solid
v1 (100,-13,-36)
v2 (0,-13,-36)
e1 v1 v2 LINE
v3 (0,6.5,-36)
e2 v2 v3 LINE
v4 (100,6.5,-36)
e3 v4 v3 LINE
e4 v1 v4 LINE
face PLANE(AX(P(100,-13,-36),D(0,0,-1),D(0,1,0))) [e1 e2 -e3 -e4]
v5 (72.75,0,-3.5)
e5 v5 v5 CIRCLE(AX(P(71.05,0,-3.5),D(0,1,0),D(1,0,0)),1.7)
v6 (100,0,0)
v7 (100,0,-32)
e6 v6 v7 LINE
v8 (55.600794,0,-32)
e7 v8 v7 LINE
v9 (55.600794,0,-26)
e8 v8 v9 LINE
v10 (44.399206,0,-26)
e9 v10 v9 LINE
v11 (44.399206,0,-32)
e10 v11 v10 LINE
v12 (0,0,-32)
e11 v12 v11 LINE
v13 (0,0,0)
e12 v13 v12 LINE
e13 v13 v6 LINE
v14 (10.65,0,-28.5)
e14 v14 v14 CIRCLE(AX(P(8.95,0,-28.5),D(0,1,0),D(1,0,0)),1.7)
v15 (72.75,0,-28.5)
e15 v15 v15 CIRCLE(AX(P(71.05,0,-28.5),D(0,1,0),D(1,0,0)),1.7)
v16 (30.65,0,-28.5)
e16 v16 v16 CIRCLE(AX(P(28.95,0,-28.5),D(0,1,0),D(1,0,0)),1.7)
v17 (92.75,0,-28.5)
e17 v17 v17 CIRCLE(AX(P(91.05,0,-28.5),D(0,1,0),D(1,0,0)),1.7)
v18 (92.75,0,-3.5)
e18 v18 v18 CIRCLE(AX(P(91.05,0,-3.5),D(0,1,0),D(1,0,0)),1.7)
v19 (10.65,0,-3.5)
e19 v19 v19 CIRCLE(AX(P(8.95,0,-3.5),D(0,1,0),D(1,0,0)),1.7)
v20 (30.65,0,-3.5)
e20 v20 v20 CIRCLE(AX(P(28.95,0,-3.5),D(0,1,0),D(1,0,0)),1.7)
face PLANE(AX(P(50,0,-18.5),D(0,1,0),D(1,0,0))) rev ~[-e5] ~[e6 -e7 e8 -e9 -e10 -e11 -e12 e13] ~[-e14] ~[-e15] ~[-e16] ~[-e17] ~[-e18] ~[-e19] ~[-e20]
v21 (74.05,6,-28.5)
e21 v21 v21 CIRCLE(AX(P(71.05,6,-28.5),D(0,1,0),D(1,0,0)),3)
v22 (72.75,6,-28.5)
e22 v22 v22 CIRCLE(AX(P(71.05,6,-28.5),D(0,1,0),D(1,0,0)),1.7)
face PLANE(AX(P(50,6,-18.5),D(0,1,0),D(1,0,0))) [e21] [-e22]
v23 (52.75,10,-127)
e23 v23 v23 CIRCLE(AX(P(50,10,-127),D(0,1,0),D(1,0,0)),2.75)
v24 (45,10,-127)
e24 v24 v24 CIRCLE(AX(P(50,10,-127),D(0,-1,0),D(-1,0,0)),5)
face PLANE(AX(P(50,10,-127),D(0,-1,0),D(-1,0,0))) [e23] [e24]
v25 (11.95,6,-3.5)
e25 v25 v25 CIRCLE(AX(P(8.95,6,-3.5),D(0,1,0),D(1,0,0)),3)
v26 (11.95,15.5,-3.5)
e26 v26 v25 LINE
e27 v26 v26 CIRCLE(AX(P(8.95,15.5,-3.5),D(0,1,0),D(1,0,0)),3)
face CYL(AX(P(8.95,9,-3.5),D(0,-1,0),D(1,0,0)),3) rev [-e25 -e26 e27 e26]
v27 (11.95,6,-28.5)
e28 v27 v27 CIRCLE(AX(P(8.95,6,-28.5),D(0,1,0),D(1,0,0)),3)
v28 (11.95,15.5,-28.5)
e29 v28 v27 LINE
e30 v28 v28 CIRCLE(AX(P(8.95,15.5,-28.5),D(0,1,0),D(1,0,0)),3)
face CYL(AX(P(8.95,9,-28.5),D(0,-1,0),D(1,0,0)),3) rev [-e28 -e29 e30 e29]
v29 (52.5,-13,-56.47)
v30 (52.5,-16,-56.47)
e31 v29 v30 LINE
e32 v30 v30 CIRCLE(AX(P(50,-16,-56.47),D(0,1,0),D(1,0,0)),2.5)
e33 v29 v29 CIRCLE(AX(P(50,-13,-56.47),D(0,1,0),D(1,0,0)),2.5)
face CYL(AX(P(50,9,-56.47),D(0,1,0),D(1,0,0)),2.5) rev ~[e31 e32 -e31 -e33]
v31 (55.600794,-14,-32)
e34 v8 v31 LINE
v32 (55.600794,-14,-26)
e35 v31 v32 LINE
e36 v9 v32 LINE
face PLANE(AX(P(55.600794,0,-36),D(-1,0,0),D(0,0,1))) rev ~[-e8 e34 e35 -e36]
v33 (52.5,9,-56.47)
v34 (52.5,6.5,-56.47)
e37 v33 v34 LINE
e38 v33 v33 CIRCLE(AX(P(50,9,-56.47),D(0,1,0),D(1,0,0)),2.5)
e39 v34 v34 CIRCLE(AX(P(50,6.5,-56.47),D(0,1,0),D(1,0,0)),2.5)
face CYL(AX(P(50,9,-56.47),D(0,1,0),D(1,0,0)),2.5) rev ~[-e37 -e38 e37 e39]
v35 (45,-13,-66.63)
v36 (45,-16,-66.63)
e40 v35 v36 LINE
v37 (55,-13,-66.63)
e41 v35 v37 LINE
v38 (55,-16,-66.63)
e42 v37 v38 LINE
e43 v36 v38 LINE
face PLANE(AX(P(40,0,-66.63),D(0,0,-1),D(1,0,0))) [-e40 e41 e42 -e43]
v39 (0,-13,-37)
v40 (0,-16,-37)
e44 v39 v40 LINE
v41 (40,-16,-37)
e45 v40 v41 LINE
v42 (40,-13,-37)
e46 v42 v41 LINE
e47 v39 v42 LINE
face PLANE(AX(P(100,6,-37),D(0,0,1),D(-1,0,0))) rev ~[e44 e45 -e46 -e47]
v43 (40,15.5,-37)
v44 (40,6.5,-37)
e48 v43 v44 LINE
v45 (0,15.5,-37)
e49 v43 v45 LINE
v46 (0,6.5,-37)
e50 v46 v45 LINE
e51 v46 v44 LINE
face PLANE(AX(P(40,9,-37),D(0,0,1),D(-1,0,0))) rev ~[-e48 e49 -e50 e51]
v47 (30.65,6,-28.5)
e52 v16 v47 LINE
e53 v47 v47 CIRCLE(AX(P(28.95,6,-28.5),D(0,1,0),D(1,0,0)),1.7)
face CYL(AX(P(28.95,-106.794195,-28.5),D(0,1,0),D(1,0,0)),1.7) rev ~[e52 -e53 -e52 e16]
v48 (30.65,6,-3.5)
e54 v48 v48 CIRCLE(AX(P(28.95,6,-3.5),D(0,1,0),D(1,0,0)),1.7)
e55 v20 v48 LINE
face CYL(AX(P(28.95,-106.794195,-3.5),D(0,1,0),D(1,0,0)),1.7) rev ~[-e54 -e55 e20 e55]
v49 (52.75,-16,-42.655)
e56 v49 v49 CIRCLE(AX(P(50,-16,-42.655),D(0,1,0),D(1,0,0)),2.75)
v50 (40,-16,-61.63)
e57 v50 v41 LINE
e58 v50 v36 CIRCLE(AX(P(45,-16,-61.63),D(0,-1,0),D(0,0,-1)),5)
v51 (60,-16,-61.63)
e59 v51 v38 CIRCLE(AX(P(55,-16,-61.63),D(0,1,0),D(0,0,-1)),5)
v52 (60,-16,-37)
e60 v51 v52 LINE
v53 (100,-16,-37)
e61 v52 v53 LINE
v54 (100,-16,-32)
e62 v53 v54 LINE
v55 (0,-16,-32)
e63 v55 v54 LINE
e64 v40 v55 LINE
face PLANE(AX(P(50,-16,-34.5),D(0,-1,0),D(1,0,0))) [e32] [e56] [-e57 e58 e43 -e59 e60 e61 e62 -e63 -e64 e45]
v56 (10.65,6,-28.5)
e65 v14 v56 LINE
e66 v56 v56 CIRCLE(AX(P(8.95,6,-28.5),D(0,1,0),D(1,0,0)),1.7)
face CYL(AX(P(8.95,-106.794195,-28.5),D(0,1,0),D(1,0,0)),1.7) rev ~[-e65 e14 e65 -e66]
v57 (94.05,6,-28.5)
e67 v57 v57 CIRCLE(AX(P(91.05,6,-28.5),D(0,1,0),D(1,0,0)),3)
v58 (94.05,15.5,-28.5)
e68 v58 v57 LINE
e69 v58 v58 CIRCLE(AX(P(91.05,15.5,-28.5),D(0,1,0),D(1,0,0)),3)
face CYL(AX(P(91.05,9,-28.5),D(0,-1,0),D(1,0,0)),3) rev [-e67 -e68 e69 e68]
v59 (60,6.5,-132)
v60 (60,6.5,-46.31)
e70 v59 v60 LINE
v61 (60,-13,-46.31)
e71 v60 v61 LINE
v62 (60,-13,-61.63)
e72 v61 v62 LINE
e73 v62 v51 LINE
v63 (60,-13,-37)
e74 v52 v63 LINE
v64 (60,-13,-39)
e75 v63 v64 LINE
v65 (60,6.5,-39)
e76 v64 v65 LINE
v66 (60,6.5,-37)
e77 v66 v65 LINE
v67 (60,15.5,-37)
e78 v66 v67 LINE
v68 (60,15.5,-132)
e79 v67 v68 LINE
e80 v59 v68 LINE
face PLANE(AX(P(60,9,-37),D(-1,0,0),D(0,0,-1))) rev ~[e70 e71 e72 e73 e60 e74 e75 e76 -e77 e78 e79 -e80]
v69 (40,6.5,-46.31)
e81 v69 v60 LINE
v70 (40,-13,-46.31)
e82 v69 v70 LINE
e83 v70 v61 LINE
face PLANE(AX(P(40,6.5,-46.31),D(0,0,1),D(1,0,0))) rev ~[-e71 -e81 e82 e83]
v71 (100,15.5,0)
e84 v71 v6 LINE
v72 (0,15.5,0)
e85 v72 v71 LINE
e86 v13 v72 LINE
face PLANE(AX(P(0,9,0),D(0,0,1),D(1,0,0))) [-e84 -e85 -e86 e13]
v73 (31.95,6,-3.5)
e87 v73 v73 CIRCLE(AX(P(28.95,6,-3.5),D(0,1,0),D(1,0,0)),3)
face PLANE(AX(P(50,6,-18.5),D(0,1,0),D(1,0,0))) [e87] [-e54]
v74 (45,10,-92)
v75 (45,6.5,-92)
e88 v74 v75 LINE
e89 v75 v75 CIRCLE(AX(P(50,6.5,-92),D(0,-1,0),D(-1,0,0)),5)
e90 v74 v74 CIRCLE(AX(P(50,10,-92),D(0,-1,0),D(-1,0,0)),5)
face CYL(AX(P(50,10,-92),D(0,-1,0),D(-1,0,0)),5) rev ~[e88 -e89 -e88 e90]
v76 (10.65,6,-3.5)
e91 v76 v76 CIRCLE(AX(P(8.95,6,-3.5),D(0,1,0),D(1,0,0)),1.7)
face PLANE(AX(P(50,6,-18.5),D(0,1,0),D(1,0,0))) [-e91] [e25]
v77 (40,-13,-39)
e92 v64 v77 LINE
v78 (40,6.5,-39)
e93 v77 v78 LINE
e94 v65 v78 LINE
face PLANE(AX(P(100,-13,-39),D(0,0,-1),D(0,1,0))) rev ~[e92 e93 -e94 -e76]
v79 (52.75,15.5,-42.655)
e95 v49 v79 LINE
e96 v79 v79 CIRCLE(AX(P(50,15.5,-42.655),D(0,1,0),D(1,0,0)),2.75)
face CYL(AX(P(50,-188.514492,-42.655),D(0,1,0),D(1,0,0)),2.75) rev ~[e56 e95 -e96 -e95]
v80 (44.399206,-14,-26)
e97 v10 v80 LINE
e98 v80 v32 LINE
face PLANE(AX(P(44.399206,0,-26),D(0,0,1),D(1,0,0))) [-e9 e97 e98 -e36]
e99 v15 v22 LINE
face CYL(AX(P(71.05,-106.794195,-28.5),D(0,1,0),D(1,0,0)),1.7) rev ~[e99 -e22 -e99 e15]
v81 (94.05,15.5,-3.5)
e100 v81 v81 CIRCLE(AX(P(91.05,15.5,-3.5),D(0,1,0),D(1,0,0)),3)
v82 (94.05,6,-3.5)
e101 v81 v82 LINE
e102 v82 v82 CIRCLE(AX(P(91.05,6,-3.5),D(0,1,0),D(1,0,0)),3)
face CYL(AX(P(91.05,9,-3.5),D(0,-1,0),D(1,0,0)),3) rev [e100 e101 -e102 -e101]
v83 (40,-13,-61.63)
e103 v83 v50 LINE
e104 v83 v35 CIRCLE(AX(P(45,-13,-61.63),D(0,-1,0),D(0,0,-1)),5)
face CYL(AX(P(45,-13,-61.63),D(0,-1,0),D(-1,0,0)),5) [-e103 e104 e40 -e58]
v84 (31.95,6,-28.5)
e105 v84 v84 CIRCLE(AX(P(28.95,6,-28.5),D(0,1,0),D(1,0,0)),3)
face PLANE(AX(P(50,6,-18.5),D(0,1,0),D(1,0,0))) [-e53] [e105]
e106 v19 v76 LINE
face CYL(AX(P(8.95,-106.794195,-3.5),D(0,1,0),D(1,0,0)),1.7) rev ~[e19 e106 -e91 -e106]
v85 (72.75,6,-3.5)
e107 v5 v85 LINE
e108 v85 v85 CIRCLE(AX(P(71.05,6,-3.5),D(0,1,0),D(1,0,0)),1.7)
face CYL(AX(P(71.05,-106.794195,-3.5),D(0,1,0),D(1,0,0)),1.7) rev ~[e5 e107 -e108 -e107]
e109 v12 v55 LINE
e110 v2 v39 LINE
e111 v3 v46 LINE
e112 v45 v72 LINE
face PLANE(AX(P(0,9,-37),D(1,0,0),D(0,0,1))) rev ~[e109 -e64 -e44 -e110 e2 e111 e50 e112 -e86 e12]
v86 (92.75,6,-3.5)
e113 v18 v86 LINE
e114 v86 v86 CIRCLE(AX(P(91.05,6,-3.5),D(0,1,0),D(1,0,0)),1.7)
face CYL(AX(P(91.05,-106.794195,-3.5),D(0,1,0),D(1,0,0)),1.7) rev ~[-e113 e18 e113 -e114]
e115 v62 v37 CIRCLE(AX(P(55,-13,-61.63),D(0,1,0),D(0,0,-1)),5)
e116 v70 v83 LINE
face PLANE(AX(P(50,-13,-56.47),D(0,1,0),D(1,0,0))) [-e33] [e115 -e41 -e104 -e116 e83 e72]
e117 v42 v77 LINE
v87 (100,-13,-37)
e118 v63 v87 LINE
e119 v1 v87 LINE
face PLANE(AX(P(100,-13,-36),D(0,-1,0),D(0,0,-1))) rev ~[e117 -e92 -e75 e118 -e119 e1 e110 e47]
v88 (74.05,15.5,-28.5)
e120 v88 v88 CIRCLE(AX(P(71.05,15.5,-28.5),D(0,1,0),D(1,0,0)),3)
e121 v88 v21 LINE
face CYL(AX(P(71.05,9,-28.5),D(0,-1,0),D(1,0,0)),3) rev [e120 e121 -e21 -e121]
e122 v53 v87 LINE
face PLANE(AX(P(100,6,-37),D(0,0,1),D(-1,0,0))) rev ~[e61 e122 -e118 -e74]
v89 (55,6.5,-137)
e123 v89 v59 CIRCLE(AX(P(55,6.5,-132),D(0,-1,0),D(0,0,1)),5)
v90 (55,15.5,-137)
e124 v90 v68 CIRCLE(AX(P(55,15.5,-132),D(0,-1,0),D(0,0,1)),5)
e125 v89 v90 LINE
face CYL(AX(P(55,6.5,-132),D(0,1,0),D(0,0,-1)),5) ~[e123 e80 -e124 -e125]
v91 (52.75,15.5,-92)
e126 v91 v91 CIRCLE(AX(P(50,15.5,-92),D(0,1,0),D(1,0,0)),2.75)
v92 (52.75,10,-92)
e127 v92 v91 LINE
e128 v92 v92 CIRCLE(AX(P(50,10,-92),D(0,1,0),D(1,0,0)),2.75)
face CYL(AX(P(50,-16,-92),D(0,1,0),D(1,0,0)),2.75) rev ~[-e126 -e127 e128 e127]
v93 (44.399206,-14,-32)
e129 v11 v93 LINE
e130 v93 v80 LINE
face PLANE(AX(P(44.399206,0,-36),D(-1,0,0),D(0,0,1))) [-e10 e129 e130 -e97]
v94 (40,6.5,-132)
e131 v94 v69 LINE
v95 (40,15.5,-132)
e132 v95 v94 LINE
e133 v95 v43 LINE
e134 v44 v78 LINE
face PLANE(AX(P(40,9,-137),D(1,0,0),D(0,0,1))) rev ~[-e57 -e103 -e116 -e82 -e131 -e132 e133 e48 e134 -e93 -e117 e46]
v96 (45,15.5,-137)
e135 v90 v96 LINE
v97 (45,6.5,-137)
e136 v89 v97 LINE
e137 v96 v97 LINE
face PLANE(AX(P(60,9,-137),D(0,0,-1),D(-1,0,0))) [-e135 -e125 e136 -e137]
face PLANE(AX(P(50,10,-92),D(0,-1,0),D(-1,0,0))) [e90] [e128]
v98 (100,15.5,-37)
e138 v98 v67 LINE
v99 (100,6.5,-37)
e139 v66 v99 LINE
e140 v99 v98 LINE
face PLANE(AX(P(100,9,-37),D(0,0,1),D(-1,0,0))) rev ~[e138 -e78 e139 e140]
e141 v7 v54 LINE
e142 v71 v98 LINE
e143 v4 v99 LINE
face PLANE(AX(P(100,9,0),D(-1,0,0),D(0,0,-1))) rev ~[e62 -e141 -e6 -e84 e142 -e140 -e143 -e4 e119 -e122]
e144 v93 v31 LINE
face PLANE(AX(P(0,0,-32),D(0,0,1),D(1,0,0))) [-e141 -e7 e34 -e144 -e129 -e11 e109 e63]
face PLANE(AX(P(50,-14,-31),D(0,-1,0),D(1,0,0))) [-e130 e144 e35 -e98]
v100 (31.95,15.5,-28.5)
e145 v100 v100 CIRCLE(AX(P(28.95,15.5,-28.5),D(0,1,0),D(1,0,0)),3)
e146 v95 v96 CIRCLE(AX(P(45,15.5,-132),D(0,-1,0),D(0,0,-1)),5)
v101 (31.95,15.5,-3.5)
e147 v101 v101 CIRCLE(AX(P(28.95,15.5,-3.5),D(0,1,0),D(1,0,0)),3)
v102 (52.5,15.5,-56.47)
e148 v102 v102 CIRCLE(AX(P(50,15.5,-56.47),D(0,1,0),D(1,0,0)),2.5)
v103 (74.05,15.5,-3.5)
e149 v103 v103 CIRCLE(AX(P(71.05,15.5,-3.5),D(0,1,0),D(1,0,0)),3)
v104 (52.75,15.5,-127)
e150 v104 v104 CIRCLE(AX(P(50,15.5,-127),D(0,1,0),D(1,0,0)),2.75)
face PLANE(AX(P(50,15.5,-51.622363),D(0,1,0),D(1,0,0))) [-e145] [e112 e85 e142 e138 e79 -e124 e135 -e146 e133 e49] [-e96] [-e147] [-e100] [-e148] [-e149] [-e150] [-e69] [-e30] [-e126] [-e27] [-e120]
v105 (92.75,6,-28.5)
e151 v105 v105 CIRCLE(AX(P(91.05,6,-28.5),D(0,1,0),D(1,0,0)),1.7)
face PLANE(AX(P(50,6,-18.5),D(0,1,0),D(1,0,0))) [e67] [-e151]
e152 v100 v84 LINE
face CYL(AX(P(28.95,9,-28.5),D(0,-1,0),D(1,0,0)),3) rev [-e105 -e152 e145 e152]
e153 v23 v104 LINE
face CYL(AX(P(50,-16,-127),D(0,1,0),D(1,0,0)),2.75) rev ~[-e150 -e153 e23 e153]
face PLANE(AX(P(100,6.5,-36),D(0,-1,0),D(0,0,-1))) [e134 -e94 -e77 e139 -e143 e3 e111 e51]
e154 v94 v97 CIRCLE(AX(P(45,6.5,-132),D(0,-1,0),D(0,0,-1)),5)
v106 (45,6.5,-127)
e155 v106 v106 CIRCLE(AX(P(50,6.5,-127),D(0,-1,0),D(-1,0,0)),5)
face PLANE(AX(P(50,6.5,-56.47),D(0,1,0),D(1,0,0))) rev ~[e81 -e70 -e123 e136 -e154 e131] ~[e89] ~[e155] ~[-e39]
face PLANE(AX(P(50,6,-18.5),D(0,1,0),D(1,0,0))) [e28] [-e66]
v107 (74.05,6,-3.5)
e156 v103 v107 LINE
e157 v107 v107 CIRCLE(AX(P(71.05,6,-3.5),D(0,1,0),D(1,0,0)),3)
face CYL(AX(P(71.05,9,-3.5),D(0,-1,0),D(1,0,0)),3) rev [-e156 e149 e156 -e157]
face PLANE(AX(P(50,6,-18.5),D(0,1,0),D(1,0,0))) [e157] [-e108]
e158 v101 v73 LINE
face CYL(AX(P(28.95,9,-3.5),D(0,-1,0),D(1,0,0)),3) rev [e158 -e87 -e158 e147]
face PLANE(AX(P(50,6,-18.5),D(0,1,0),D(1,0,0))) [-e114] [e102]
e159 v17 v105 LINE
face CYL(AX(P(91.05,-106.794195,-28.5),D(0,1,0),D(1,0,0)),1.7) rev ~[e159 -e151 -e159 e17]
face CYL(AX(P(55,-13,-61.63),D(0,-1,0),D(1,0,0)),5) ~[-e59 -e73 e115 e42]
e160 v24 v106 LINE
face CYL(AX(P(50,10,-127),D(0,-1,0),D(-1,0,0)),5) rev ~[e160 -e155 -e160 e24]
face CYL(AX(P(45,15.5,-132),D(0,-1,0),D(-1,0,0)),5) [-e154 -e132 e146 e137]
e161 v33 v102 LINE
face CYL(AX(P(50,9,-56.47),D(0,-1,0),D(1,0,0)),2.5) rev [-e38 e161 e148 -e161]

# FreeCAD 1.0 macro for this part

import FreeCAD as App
import Part
import Sketcher
Q = App.Units.Quantity


def edges_at(feature, points):
    """Names of the edges that pass closest to the given points."""
    edges = feature.Shape.Edges
    near = lambda p: min(range(len(edges)), key=lambda i: edges[i].distToShape(Part.Vertex(*p))[0])
    return sorted({f"Edge{near(p) + 1}" for p in points})

doc = App.newDocument("Part")
body = doc.addObject("PartDesign::Body", "Body")

sketch1 = body.newObject("Sketcher::SketchObject", "Sketch")
sketch1.AttachmentSupport = (doc.getObject("XZ_Plane"), [""])
sketch1.MapMode = "FlatFace"
sketch1.addGeometry([
    Part.LineSegment(App.Vector(0, -37, 0), App.Vector(0, 0, 0)),
    Part.LineSegment(App.Vector(0, 0, 0), App.Vector(100, 0, 0)),
    Part.LineSegment(App.Vector(100, 0, 0), App.Vector(100, -37, 0)),
    Part.LineSegment(App.Vector(100, -37, 0), App.Vector(0, -37, 0)),
], False)
sketch1.addConstraint([
    Sketcher.Constraint("Coincident", 0, 2, 1, 1),
    Sketcher.Constraint("Coincident", 1, 2, 2, 1),
    Sketcher.Constraint("Coincident", 2, 2, 3, 1),
    Sketcher.Constraint("Coincident", 3, 2, 0, 1),
    Sketcher.Constraint("Vertical", 0),
    Sketcher.Constraint("Horizontal", 1),
    Sketcher.Constraint("Vertical", 2),
    Sketcher.Constraint("Horizontal", 3),
    Sketcher.Constraint("Coincident", 0, 2, -1, 1),
    Sketcher.Constraint("DistanceX", 1, 1, 1, 2, Q("100 mm")),
    Sketcher.Constraint("DistanceY", 0, 1, 0, 2, Q("37 mm")),
])
pad1 = body.newObject("PartDesign::Pad", "Pad")
pad1.Profile = sketch1
pad1.Length = 6
pad1.Reversed = True

sketch2 = body.newObject("Sketcher::SketchObject", "Sketch001")
sketch2.AttachmentSupport = (doc.getObject("XZ_Plane"), [""])
sketch2.MapMode = "FlatFace"
sketch2.addGeometry([
    Part.Circle(App.Vector(8.95, -3.5, 0), App.Vector(0, 0, 1), 1.7),
    Part.Circle(App.Vector(8.95, -28.5, 0), App.Vector(0, 0, 1), 1.7),
    Part.Circle(App.Vector(28.95, -28.5, 0), App.Vector(0, 0, 1), 1.7),
    Part.Circle(App.Vector(28.95, -3.5, 0), App.Vector(0, 0, 1), 1.7),
    Part.Circle(App.Vector(71.05, -3.5, 0), App.Vector(0, 0, 1), 1.7),
    Part.Circle(App.Vector(71.05, -28.5, 0), App.Vector(0, 0, 1), 1.7),
    Part.Circle(App.Vector(91.05, -28.5, 0), App.Vector(0, 0, 1), 1.7),
    Part.Circle(App.Vector(91.05, -3.5, 0), App.Vector(0, 0, 1), 1.7),
], False)
sketch2.addConstraint([
    Sketcher.Constraint("Equal", 0, 1),
    Sketcher.Constraint("Equal", 1, 2),
    Sketcher.Constraint("Equal", 2, 3),
    Sketcher.Constraint("Equal", 3, 4),
    Sketcher.Constraint("Equal", 4, 5),
    Sketcher.Constraint("Equal", 5, 6),
    Sketcher.Constraint("Equal", 6, 7),
    Sketcher.Constraint("Horizontal", 1, 3, 2, 3),
    Sketcher.Constraint("Horizontal", 0, 3, 3, 3),
    Sketcher.Constraint("Horizontal", 3, 3, 4, 3),
    Sketcher.Constraint("Horizontal", 2, 3, 5, 3),
    Sketcher.Constraint("Horizontal", 5, 3, 6, 3),
    Sketcher.Constraint("Horizontal", 4, 3, 7, 3),
    Sketcher.Constraint("Vertical", 0, 3, 1, 3),
    Sketcher.Constraint("Vertical", 2, 3, 3, 3),
    Sketcher.Constraint("Vertical", 4, 3, 5, 3),
    Sketcher.Constraint("Vertical", 6, 3, 7, 3),
    Sketcher.Constraint("Diameter", 0, Q("3.4 mm")),
    Sketcher.Constraint("DistanceY", 1, 3, 0, 3, Q("25 mm")),
    Sketcher.Constraint("DistanceX", 1, 3, 2, 3, Q("20 mm")),
    Sketcher.Constraint("DistanceX", 5, 3, 6, 3, Q("20 mm")),
    Sketcher.Constraint("DistanceY", 0, 3, -1, 1, Q("3.5 mm")),
    Sketcher.Constraint("DistanceX", 3, 3, 4, 3, Q("42.1 mm")),
    Sketcher.Constraint("DistanceX", -1, 1, 0, 3, Q("8.95 mm")),
])
doc.recompute()
hole = body.newObject("PartDesign::Hole", "Hole")
hole.Profile = sketch2
hole.ThreadType = "None"
hole.Diameter = 3.4
hole.DepthType = "ThroughAll"

sketch3 = body.newObject("Sketcher::SketchObject", "Sketch002")
sketch3.AttachmentSupport = (doc.getObject("XZ_Plane"), [""])
sketch3.MapMode = "FlatFace"
sketch3.addGeometry([
    Part.LineSegment(App.Vector(40, -37, 0), App.Vector(40, -66.63, 0)),
    Part.LineSegment(App.Vector(40, -66.63, 0), App.Vector(60, -66.63, 0)),
    Part.LineSegment(App.Vector(60, -66.63, 0), App.Vector(60, -37, 0)),
    Part.LineSegment(App.Vector(60, -37, 0), App.Vector(40, -37, 0)),
], False)
sketch3.addConstraint([
    Sketcher.Constraint("Coincident", 0, 2, 1, 1),
    Sketcher.Constraint("Coincident", 1, 2, 2, 1),
    Sketcher.Constraint("Coincident", 2, 2, 3, 1),
    Sketcher.Constraint("Coincident", 3, 2, 0, 1),
    Sketcher.Constraint("Vertical", 0),
    Sketcher.Constraint("Horizontal", 1),
    Sketcher.Constraint("Vertical", 2),
    Sketcher.Constraint("Horizontal", 3),
    Sketcher.Constraint("DistanceX", 1, 1, 1, 2, Q("20 mm")),
    Sketcher.Constraint("DistanceX", -1, 1, 0, 2, Q("40 mm")),
    Sketcher.Constraint("DistanceY", 2, 2, -1, 1, Q("37 mm")),
    Sketcher.Constraint("DistanceY", 0, 2, 0, 1, Q("29.63 mm")),
])
pad2 = body.newObject("PartDesign::Pad", "Pad001")
pad2.Profile = sketch3
pad2.Type = "TwoLengths"
pad2.Length = 16
pad2.Length2 = 9

sketch4 = body.newObject("Sketcher::SketchObject", "Sketch003")
sketch4.AttachmentSupport = (doc.getObject("XZ_Plane"), [""])
sketch4.MapMode = "FlatFace"
sketch4.addGeometry([
    Part.LineSegment(App.Vector(0, -32, 0), App.Vector(0, -37, 0)),
    Part.LineSegment(App.Vector(0, -37, 0), App.Vector(100, -37, 0)),
    Part.LineSegment(App.Vector(100, -37, 0), App.Vector(100, -32, 0)),
    Part.LineSegment(App.Vector(100, -32, 0), App.Vector(0, -32, 0)),
], False)
sketch4.addConstraint([
    Sketcher.Constraint("Coincident", 0, 2, 1, 1),
    Sketcher.Constraint("Coincident", 1, 2, 2, 1),
    Sketcher.Constraint("Coincident", 2, 2, 3, 1),
    Sketcher.Constraint("Coincident", 3, 2, 0, 1),
    Sketcher.Constraint("Vertical", 0),
    Sketcher.Constraint("Horizontal", 1),
    Sketcher.Constraint("Vertical", 2),
    Sketcher.Constraint("Horizontal", 3),
    Sketcher.Constraint("PointOnObject", 0, 2, -2),
    Sketcher.Constraint("DistanceX", 1, 1, 1, 2, Q("100 mm")),
    Sketcher.Constraint("DistanceY", 0, 2, 0, 1, Q("5 mm")),
    Sketcher.Constraint("DistanceY", 0, 2, -1, 1, Q("37 mm")),
])
pad3 = body.newObject("PartDesign::Pad", "Pad002")
pad3.Profile = sketch4
pad3.Length = 16

sketch5 = body.newObject("Sketcher::SketchObject", "Sketch004")
sketch5.AttachmentSupport = (doc.getObject("XZ_Plane"), [""])
sketch5.MapMode = "FlatFace"
sketch5.AttachmentOffset = App.Placement(App.Vector(0, 0, -6), App.Rotation())
sketch5.addGeometry([
    Part.LineSegment(App.Vector(0, -37, 0), App.Vector(0, 0, 0)),
    Part.LineSegment(App.Vector(0, 0, 0), App.Vector(100, 0, 0)),
    Part.LineSegment(App.Vector(100, 0, 0), App.Vector(100, -37, 0)),
    Part.LineSegment(App.Vector(100, -37, 0), App.Vector(0, -37, 0)),
    Part.Circle(App.Vector(8.95, -3.5, 0), App.Vector(0, 0, 1), 3),
    Part.Circle(App.Vector(28.95, -3.5, 0), App.Vector(0, 0, 1), 3),
    Part.Circle(App.Vector(71.05, -3.5, 0), App.Vector(0, 0, 1), 3),
    Part.Circle(App.Vector(91.05, -3.5, 0), App.Vector(0, 0, 1), 3),
    Part.Circle(App.Vector(8.95, -28.5, 0), App.Vector(0, 0, 1), 3),
    Part.Circle(App.Vector(28.95, -28.5, 0), App.Vector(0, 0, 1), 3),
    Part.Circle(App.Vector(71.05, -28.5, 0), App.Vector(0, 0, 1), 3),
    Part.Circle(App.Vector(91.05, -28.5, 0), App.Vector(0, 0, 1), 3),
], False)
sketch5.addConstraint([
    Sketcher.Constraint("Coincident", 0, 2, 1, 1),
    Sketcher.Constraint("Coincident", 1, 2, 2, 1),
    Sketcher.Constraint("Coincident", 2, 2, 3, 1),
    Sketcher.Constraint("Coincident", 3, 2, 0, 1),
    Sketcher.Constraint("Vertical", 0),
    Sketcher.Constraint("Horizontal", 1),
    Sketcher.Constraint("Vertical", 2),
    Sketcher.Constraint("Horizontal", 3),
    Sketcher.Constraint("Coincident", 0, 2, -1, 1),
    Sketcher.Constraint("Equal", 4, 5),
    Sketcher.Constraint("Equal", 5, 6),
    Sketcher.Constraint("Equal", 6, 7),
    Sketcher.Constraint("Equal", 7, 8),
    Sketcher.Constraint("Equal", 8, 9),
    Sketcher.Constraint("Equal", 9, 10),
    Sketcher.Constraint("Equal", 10, 11),
    Sketcher.Constraint("Horizontal", 4, 3, 5, 3),
    Sketcher.Constraint("Horizontal", 5, 3, 6, 3),
    Sketcher.Constraint("Horizontal", 6, 3, 7, 3),
    Sketcher.Constraint("Horizontal", 8, 3, 9, 3),
    Sketcher.Constraint("Horizontal", 9, 3, 10, 3),
    Sketcher.Constraint("Horizontal", 10, 3, 11, 3),
    Sketcher.Constraint("Vertical", 4, 3, 8, 3),
    Sketcher.Constraint("Vertical", 5, 3, 9, 3),
    Sketcher.Constraint("Vertical", 6, 3, 10, 3),
    Sketcher.Constraint("Vertical", 7, 3, 11, 3),
    Sketcher.Constraint("Diameter", 4, Q("6 mm")),
    Sketcher.Constraint("DistanceX", 1, 1, 1, 2, Q("100 mm")),
    Sketcher.Constraint("DistanceY", 0, 1, 0, 2, Q("37 mm")),
    Sketcher.Constraint("DistanceX", 4, 3, 5, 3, Q("20 mm")),
    Sketcher.Constraint("DistanceX", 6, 3, 7, 3, Q("20 mm")),
    Sketcher.Constraint("DistanceY", 8, 3, 4, 3, Q("25 mm")),
    Sketcher.Constraint("DistanceY", 4, 3, -1, 1, Q("3.5 mm")),
    Sketcher.Constraint("DistanceX", 5, 3, 6, 3, Q("42.1 mm")),
    Sketcher.Constraint("DistanceX", -1, 1, 4, 3, Q("8.95 mm")),
])
pad4 = body.newObject("PartDesign::Pad", "Pad003")
pad4.Profile = sketch5
pad4.Length = 3
pad4.Reversed = True

sketch6 = body.newObject("Sketcher::SketchObject", "Sketch005")
sketch6.AttachmentSupport = (doc.getObject("YZ_Plane"), [""])
sketch6.MapMode = "FlatFace"
sketch6.AttachmentOffset = App.Placement(App.Vector(0, 0, 100), App.Rotation())
sketch6.addGeometry([
    Part.LineSegment(App.Vector(6.5, -36, 0), App.Vector(-13, -36, 0)),
    Part.LineSegment(App.Vector(-13, -36, 0), App.Vector(-13, -39, 0)),
    Part.LineSegment(App.Vector(-13, -39, 0), App.Vector(6.5, -39, 0)),
    Part.LineSegment(App.Vector(6.5, -39, 0), App.Vector(6.5, -36, 0)),
], False)
sketch6.addConstraint([
    Sketcher.Constraint("Coincident", 0, 2, 1, 1),
    Sketcher.Constraint("Coincident", 1, 2, 2, 1),
    Sketcher.Constraint("Coincident", 2, 2, 3, 1),
    Sketcher.Constraint("Coincident", 3, 2, 0, 1),
    Sketcher.Constraint("Horizontal", 0),
    Sketcher.Constraint("Vertical", 1),
    Sketcher.Constraint("Horizontal", 2),
    Sketcher.Constraint("Vertical", 3),
    Sketcher.Constraint("DistanceY", 1, 2, 1, 1, Q("3 mm")),
    Sketcher.Constraint("DistanceX", 0, 2, 0, 1, Q("19.5 mm")),
    Sketcher.Constraint("DistanceX", 0, 2, -1, 1, Q("13 mm")),
    Sketcher.Constraint("DistanceY", 0, 2, -1, 1, Q("36 mm")),
])
pocket1 = body.newObject("PartDesign::Pocket", "Pocket")
pocket1.Profile = sketch6
pocket1.Type = "ThroughAll"

sketch7 = body.newObject("Sketcher::SketchObject", "Sketch006")
sketch7.AttachmentSupport = (doc.getObject("XZ_Plane"), [""])
sketch7.MapMode = "FlatFace"
sketch7.AttachmentOffset = App.Placement(App.Vector(0, 0, -6.5), App.Rotation())
sketch7.addGeometry([
    Part.LineSegment(App.Vector(40, -66.63, 0), App.Vector(40, -46.31, 0)),
    Part.LineSegment(App.Vector(40, -46.31, 0), App.Vector(60, -46.31, 0)),
    Part.LineSegment(App.Vector(60, -46.31, 0), App.Vector(60, -66.63, 0)),
    Part.LineSegment(App.Vector(60, -66.63, 0), App.Vector(40, -66.63, 0)),
], False)
sketch7.addConstraint([
    Sketcher.Constraint("Coincident", 0, 2, 1, 1),
    Sketcher.Constraint("Coincident", 1, 2, 2, 1),
    Sketcher.Constraint("Coincident", 2, 2, 3, 1),
    Sketcher.Constraint("Coincident", 3, 2, 0, 1),
    Sketcher.Constraint("Vertical", 0),
    Sketcher.Constraint("Horizontal", 1),
    Sketcher.Constraint("Vertical", 2),
    Sketcher.Constraint("Horizontal", 3),
    Sketcher.Constraint("DistanceX", 1, 1, 1, 2, Q("20 mm")),
    Sketcher.Constraint("DistanceX", -1, 1, 0, 2, Q("40 mm")),
    Sketcher.Constraint("DistanceY", 0, 1, 0, 2, Q("20.32 mm")),
    Sketcher.Constraint("DistanceY", 0, 2, -1, 1, Q("46.31 mm")),
])
pocket2 = body.newObject("PartDesign::Pocket", "Pocket001")
pocket2.Profile = sketch7
pocket2.Length = 19.5
pocket2.Reversed = True

sketch8 = body.newObject("Sketcher::SketchObject", "Sketch007")
sketch8.AttachmentSupport = (doc.getObject("XZ_Plane"), [""])
sketch8.MapMode = "FlatFace"
sketch8.AttachmentOffset = App.Placement(App.Vector(0, 0, -9), App.Rotation())
sketch8.addGeometry(Part.Circle(App.Vector(50, -56.47, 0), App.Vector(0, 0, 1), 2.5), False)
sketch8.addConstraint([
    Sketcher.Constraint("Diameter", 0, Q("5 mm")),
    Sketcher.Constraint("DistanceX", -1, 1, 0, 3, Q("50 mm")),
    Sketcher.Constraint("DistanceY", 0, 3, -1, 1, Q("56.47 mm")),
])
pocket3 = body.newObject("PartDesign::Pocket", "Pocket002")
pocket3.Profile = sketch8
pocket3.Type = "ThroughAll"
pocket3.Reversed = True
doc.recompute()

fillet = body.newObject("PartDesign::Fillet", "Fillet")
fillet.Base = (pocket3, edges_at(pocket3, [
    (60, 7.75, -66.63),
    (40, 7.75, -66.63),
    (40, -14.5, -66.63),
    (60, -14.5, -66.63),
]))
fillet.Radius = 5

sketch9 = body.newObject("Sketcher::SketchObject", "Sketch008")
sketch9.AttachmentSupport = (doc.getObject("XZ_Plane"), [""])
sketch9.MapMode = "FlatFace"
sketch9.AttachmentOffset = App.Placement(App.Vector(0, 0, -9), App.Rotation())
sketch9.addGeometry([
    Part.LineSegment(App.Vector(40, -37, 0), App.Vector(0, -37, 0)),
    Part.LineSegment(App.Vector(0, -37, 0), App.Vector(0, 0, 0)),
    Part.LineSegment(App.Vector(0, 0, 0), App.Vector(100, 0, 0)),
    Part.LineSegment(App.Vector(100, 0, 0), App.Vector(100, -37, 0)),
    Part.LineSegment(App.Vector(100, -37, 0), App.Vector(60, -37, 0)),
    Part.LineSegment(App.Vector(60, -37, 0), App.Vector(60, -137, 0)),
    Part.LineSegment(App.Vector(60, -137, 0), App.Vector(40, -137, 0)),
    Part.LineSegment(App.Vector(40, -137, 0), App.Vector(40, -37, 0)),
    Part.Circle(App.Vector(8.95, -3.5, 0), App.Vector(0, 0, 1), 3),
    Part.Circle(App.Vector(28.95, -3.5, 0), App.Vector(0, 0, 1), 3),
    Part.Circle(App.Vector(8.95, -28.5, 0), App.Vector(0, 0, 1), 3),
    Part.Circle(App.Vector(28.95, -28.5, 0), App.Vector(0, 0, 1), 3),
    Part.Circle(App.Vector(71.05, -3.5, 0), App.Vector(0, 0, 1), 3),
    Part.Circle(App.Vector(91.05, -3.5, 0), App.Vector(0, 0, 1), 3),
    Part.Circle(App.Vector(71.05, -28.5, 0), App.Vector(0, 0, 1), 3),
    Part.Circle(App.Vector(91.05, -28.5, 0), App.Vector(0, 0, 1), 3),
    Part.Circle(App.Vector(50, -56.47, 0), App.Vector(0, 0, 1), 2.5),
], False)
sketch9.addConstraint([
    Sketcher.Constraint("Coincident", 0, 2, 1, 1),
    Sketcher.Constraint("Coincident", 1, 2, 2, 1),
    Sketcher.Constraint("Coincident", 2, 2, 3, 1),
    Sketcher.Constraint("Coincident", 3, 2, 4, 1),
    Sketcher.Constraint("Coincident", 4, 2, 5, 1),
    Sketcher.Constraint("Coincident", 5, 2, 6, 1),
    Sketcher.Constraint("Coincident", 6, 2, 7, 1),
    Sketcher.Constraint("Coincident", 7, 2, 0, 1),
    Sketcher.Constraint("Horizontal", 0),
    Sketcher.Constraint("Vertical", 1),
    Sketcher.Constraint("Horizontal", 2),
    Sketcher.Constraint("Vertical", 3),
    Sketcher.Constraint("Horizontal", 4),
    Sketcher.Constraint("Vertical", 5),
    Sketcher.Constraint("Horizontal", 6),
    Sketcher.Constraint("Vertical", 7),
    Sketcher.Constraint("Coincident", 1, 2, -1, 1),
    Sketcher.Constraint("Equal", 8, 9),
    Sketcher.Constraint("Equal", 9, 10),
    Sketcher.Constraint("Equal", 10, 11),
    Sketcher.Constraint("Equal", 11, 12),
    Sketcher.Constraint("Equal", 12, 13),
    Sketcher.Constraint("Equal", 13, 14),
    Sketcher.Constraint("Equal", 14, 15),
    Sketcher.Constraint("Horizontal", 8, 3, 9, 3),
    Sketcher.Constraint("Horizontal", 10, 3, 11, 3),
    Sketcher.Constraint("Horizontal", 9, 3, 12, 3),
    Sketcher.Constraint("Horizontal", 12, 3, 13, 3),
    Sketcher.Constraint("Horizontal", 11, 3, 14, 3),
    Sketcher.Constraint("Horizontal", 14, 3, 15, 3),
    Sketcher.Constraint("Horizontal", 0, 2, 3, 2),
    Sketcher.Constraint("Vertical", 8, 3, 10, 3),
    Sketcher.Constraint("Vertical", 9, 3, 11, 3),
    Sketcher.Constraint("Vertical", 12, 3, 14, 3),
    Sketcher.Constraint("Vertical", 13, 3, 15, 3),
    Sketcher.Constraint("Equal", 0, 4),
    Sketcher.Constraint("Equal", 2, 5),
    Sketcher.Constraint("Diameter", 8, Q("6 mm")),
    Sketcher.Constraint("Diameter", 16, Q("5 mm")),
    Sketcher.Constraint("DistanceX", 0, 2, 0, 1, Q("40 mm")),
    Sketcher.Constraint("DistanceX", 2, 1, 2, 2, Q("100 mm")),
    Sketcher.Constraint("DistanceY", 1, 1, 1, 2, Q("37 mm")),
    Sketcher.Constraint("DistanceX", -1, 1, 16, 3, Q("50 mm")),
    Sketcher.Constraint("DistanceX", 8, 3, 9, 3, Q("20 mm")),
    Sketcher.Constraint("DistanceY", 10, 3, 8, 3, Q("25 mm")),
    Sketcher.Constraint("DistanceX", 12, 3, 13, 3, Q("20 mm")),
    Sketcher.Constraint("DistanceY", 8, 3, -1, 1, Q("3.5 mm")),
    Sketcher.Constraint("DistanceX", 9, 3, 12, 3, Q("42.1 mm")),
    Sketcher.Constraint("DistanceX", -1, 1, 8, 3, Q("8.95 mm")),
    Sketcher.Constraint("DistanceY", 16, 3, -1, 1, Q("56.47 mm")),
])
pad5 = body.newObject("PartDesign::Pad", "Pad004")
pad5.Profile = sketch9
pad5.Type = "TwoLengths"
pad5.Length = 6.5
pad5.Length2 = 2.5
pad5.Reversed = True

sketch10 = body.newObject("Sketcher::SketchObject", "Sketch009")
sketch10.AttachmentSupport = (doc.getObject("XZ_Plane"), [""])
sketch10.MapMode = "FlatFace"
sketch10.AttachmentOffset = App.Placement(App.Vector(0, 0, 16), App.Rotation())
sketch10.addGeometry([
    Part.Circle(App.Vector(50, -127, 0), App.Vector(0, 0, 1), 2.75),
    Part.Circle(App.Vector(50, -92, 0), App.Vector(0, 0, 1), 2.75),
], False)
sketch10.addConstraint([
    Sketcher.Constraint("Equal", 0, 1),
    Sketcher.Constraint("Vertical", 0, 3, 1, 3),
    Sketcher.Constraint("Diameter", 0, Q("5.5 mm")),
    Sketcher.Constraint("DistanceX", -1, 1, 0, 3, Q("50 mm")),
    Sketcher.Constraint("DistanceY", 0, 3, -1, 1, Q("127 mm")),
    Sketcher.Constraint("DistanceY", 1, 3, -1, 1, Q("92 mm")),
])
doc.recompute()
hole2 = body.newObject("PartDesign::Hole", "Hole001")
hole2.Profile = sketch10
hole2.ThreadType = "None"
hole2.Diameter = 5.5
hole2.DepthType = "ThroughAll"
hole2.HoleCutType = "Counterbore"
hole2.HoleCutDiameter = 10
hole2.HoleCutDepth = 26

sketch11 = body.newObject("Sketcher::SketchObject", "Sketch010")
sketch11.AttachmentSupport = (doc.getObject("XZ_Plane"), [""])
sketch11.MapMode = "FlatFace"
sketch11.AttachmentOffset = App.Placement(App.Vector(0, 0, 16), App.Rotation())
sketch11.addGeometry(Part.Circle(App.Vector(50, -42.655, 0), App.Vector(0, 0, 1), 2.75), False)
sketch11.addConstraint([
    Sketcher.Constraint("Diameter", 0, Q("5.5 mm")),
    Sketcher.Constraint("DistanceX", -1, 1, 0, 3, Q("50 mm")),
    Sketcher.Constraint("DistanceY", 0, 3, -1, 1, Q("42.655 mm")),
])
doc.recompute()
hole3 = body.newObject("PartDesign::Hole", "Hole002")
hole3.Profile = sketch11
hole3.ThreadType = "None"
hole3.Diameter = 5.5
hole3.DepthType = "ThroughAll"
doc.recompute()

fillet2 = body.newObject("PartDesign::Fillet", "Fillet001")
fillet2.Base = (hole3, edges_at(hole3, [(60, 11, -137), (40, 11, -137)]))
fillet2.Radius = 5

sketch12 = body.newObject("Sketcher::SketchObject", "Sketch011")
sketch12.AttachmentSupport = (doc.getObject("XZ_Plane"), [""])
sketch12.MapMode = "FlatFace"
sketch12.addGeometry([
    Part.LineSegment(App.Vector(44.399206, -26, 0), App.Vector(44.399206, -36, 0)),
    Part.LineSegment(App.Vector(44.399206, -36, 0), App.Vector(55.600794, -36, 0)),
    Part.LineSegment(App.Vector(55.600794, -36, 0), App.Vector(55.600794, -26, 0)),
    Part.LineSegment(App.Vector(55.600794, -26, 0), App.Vector(44.399206, -26, 0)),
], False)
sketch12.addConstraint([
    Sketcher.Constraint("Coincident", 0, 2, 1, 1),
    Sketcher.Constraint("Coincident", 1, 2, 2, 1),
    Sketcher.Constraint("Coincident", 2, 2, 3, 1),
    Sketcher.Constraint("Coincident", 3, 2, 0, 1),
    Sketcher.Constraint("Vertical", 0),
    Sketcher.Constraint("Horizontal", 1),
    Sketcher.Constraint("Vertical", 2),
    Sketcher.Constraint("Horizontal", 3),
    Sketcher.Constraint("DistanceY", 0, 2, 0, 1, Q("10 mm")),
    Sketcher.Constraint("DistanceY", 0, 2, -1, 1, Q("36 mm")),
    Sketcher.Constraint("DistanceX", 1, 1, 1, 2, Q("11.201589 mm")),
    Sketcher.Constraint("DistanceX", -1, 1, 0, 2, Q("44.399206 mm")),
])
pad6 = body.newObject("PartDesign::Pad", "Pad005")
pad6.Profile = sketch12
pad6.Length = 14

doc.recompute()
